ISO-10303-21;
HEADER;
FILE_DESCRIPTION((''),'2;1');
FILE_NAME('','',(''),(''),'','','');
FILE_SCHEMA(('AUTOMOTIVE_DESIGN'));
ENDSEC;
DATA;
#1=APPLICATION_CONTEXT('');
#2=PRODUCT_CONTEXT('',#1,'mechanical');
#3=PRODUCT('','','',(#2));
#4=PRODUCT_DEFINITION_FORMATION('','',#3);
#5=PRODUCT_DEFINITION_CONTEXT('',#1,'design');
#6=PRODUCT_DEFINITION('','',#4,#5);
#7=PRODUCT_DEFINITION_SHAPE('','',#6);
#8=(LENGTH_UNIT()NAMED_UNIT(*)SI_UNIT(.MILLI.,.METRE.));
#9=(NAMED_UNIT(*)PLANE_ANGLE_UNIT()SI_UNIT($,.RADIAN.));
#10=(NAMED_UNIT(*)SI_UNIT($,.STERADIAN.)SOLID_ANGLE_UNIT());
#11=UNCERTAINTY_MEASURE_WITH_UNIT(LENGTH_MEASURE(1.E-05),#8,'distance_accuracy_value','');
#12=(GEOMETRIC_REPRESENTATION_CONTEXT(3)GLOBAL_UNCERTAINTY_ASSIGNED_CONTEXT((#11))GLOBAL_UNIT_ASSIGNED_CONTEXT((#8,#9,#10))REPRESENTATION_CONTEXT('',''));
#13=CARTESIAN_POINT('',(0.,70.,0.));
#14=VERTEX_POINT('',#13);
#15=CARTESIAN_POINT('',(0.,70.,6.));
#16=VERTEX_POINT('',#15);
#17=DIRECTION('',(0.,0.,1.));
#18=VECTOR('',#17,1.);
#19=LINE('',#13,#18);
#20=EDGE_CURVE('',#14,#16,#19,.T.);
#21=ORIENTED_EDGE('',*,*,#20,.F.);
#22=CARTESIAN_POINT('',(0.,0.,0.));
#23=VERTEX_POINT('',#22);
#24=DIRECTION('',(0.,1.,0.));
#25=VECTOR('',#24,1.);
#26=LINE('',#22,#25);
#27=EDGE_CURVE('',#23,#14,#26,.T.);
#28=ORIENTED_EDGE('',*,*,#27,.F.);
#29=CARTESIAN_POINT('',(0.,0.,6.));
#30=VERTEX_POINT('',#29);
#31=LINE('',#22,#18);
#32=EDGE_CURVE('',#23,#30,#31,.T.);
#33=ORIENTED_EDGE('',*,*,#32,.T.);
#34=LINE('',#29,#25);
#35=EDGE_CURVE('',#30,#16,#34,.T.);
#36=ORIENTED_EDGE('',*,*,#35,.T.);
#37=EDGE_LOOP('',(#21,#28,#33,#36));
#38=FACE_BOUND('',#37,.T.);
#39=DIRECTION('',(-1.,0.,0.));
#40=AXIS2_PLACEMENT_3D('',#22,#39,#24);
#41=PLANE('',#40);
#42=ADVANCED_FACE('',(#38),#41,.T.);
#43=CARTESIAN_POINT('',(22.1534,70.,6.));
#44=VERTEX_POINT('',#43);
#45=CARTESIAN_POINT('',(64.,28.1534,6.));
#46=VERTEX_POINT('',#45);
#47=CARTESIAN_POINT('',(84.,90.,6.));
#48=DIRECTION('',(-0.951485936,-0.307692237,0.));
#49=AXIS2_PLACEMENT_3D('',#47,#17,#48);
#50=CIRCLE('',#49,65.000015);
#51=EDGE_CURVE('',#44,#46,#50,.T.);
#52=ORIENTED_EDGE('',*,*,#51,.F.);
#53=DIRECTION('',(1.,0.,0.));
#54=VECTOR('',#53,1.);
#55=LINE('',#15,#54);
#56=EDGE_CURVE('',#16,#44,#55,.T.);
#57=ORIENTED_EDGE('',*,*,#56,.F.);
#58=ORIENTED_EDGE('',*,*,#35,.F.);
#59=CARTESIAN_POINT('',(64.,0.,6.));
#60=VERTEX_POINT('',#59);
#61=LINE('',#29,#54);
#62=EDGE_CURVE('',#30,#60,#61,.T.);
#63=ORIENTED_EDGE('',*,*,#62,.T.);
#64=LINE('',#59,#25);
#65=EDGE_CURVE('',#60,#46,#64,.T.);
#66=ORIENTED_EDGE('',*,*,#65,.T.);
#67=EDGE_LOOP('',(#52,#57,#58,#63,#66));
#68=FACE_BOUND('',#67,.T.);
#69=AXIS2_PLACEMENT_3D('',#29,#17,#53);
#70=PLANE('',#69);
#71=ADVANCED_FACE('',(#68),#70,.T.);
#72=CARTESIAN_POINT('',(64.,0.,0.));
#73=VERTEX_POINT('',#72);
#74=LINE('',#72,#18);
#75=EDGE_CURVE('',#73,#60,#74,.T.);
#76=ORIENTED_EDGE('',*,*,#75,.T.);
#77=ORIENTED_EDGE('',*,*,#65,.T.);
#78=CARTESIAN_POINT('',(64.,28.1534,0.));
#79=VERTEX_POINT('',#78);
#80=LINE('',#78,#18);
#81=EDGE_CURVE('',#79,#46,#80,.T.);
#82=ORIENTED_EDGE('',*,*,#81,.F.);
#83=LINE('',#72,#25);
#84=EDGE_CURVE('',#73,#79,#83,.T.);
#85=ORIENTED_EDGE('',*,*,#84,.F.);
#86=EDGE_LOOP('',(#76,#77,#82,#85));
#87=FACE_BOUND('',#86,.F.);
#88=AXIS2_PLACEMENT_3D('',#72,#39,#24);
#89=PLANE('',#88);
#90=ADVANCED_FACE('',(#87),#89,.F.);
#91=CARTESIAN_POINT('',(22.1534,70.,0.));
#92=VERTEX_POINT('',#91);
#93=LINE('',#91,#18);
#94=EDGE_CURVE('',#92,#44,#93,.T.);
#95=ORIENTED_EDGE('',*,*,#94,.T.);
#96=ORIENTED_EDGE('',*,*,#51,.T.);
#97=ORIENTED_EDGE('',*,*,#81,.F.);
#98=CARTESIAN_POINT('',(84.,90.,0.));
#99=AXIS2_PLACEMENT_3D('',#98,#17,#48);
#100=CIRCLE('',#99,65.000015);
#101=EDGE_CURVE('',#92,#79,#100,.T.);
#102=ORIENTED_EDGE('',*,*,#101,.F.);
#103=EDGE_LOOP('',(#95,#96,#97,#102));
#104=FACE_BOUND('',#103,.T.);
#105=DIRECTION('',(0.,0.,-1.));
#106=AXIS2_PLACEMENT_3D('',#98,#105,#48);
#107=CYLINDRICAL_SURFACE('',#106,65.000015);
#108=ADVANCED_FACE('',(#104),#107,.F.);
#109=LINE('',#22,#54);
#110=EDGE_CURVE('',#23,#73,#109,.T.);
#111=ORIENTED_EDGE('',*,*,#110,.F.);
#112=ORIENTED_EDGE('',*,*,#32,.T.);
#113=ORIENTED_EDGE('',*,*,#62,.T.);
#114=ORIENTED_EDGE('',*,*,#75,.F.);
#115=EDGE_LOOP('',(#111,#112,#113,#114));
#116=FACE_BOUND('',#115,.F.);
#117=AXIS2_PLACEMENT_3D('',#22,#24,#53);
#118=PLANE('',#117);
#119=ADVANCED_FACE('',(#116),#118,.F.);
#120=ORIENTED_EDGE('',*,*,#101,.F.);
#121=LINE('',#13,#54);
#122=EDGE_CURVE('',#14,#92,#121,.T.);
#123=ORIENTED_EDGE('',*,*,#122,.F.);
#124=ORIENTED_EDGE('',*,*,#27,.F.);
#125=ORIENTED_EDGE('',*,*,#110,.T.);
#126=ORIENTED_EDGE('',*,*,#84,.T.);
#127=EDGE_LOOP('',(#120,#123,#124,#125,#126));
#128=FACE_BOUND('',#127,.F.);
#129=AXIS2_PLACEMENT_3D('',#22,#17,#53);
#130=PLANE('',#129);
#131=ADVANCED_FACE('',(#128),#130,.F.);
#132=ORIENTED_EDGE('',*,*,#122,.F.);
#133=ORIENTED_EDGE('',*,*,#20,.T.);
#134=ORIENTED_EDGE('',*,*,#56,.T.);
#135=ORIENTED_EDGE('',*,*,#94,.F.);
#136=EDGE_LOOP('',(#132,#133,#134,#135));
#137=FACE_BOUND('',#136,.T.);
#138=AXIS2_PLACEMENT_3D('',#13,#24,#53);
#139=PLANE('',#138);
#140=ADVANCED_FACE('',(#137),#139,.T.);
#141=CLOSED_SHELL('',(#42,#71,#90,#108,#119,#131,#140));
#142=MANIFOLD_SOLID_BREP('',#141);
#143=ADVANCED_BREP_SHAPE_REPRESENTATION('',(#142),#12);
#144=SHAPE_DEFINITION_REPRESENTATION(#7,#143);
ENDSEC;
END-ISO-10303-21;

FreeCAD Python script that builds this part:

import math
import FreeCAD as App
import Part
import Sketcher
from FreeCAD import Vector
Q = App.Units.Quantity

doc = App.newDocument("Part")
params = doc.addObject("Spreadsheet::Sheet", "Params")
for row, (alias, value) in enumerate([
    ("sketch1_radius", "65 mm"),
    ("sketch1_width", "64 mm"),
    ("sketch1_height", "70 mm"),
    ("pad1_length", "6 mm"),
], start=1):
    params.set(f"A{row}", alias)
    params.set(f"B{row}", "=" + value)
    params.setAlias(f"B{row}", alias)

body = doc.addObject("PartDesign::Body", "Body")

# Sketch on XY plane
sketch1 = doc.addObject("Sketcher::SketchObject", "Sketch")
body.addObject(sketch1)
sketch1.AttachmentSupport = (doc.XY_Plane, [""])
sketch1.MapMode = "FlatFace"
sketch1.addGeometry(Part.LineSegment(Vector(0, 70, 0), Vector(0, 0, 0)), False)
sketch1.addGeometry(Part.LineSegment(Vector(0, 0, 0), Vector(64, 0, 0)), False)
sketch1.addGeometry(Part.LineSegment(Vector(64, 0, 0), Vector(64, 28.1534, 0)), False)
sketch1.addGeometry(Part.ArcOfCircle(Part.Circle(Vector(84, 90, 0), Vector(0, 0, 1), 65.000015), math.radians(-162.079791), math.radians(-107.920209)), False)
sketch1.addGeometry(Part.LineSegment(Vector(22.1534, 70, 0), Vector(0, 70, 0)), False)
sketch1.addConstraint(Sketcher.Constraint("Coincident", 0, 2, 1, 1))
sketch1.addConstraint(Sketcher.Constraint("Coincident", 1, 2, 2, 1))
sketch1.addConstraint(Sketcher.Constraint("Coincident", 2, 2, 3, 2))
sketch1.addConstraint(Sketcher.Constraint("Coincident", 3, 1, 4, 1))
sketch1.addConstraint(Sketcher.Constraint("Coincident", 4, 2, 0, 1))
sketch1.addConstraint(Sketcher.Constraint("Vertical", 0))
sketch1.addConstraint(Sketcher.Constraint("Horizontal", 1))
sketch1.addConstraint(Sketcher.Constraint("Vertical", 2))
sketch1.addConstraint(Sketcher.Constraint("Horizontal", 4))
sketch1.addConstraint(Sketcher.Constraint("Coincident", 0, 2, -1, 1))
sketch1.addConstraint(Sketcher.Constraint("Radius", 3, Q("65 mm")))
sketch1.addConstraint(Sketcher.Constraint("DistanceX", 1, 1, 1, 2, Q("64 mm")))
sketch1.addConstraint(Sketcher.Constraint("DistanceY", 0, 2, 0, 1, Q("70 mm")))
sketch1.addConstraint(Sketcher.Constraint("DistanceX", -1, 1, 3, 3, Q("84 mm")))
sketch1.addConstraint(Sketcher.Constraint("DistanceY", -1, 1, 3, 3, Q("90 mm")))
sketch1.setExpression("Constraints[10]", "Params.sketch1_radius")
sketch1.setExpression("Constraints[11]", "Params.sketch1_width")
sketch1.setExpression("Constraints[12]", "Params.sketch1_height")
pad1 = doc.addObject("PartDesign::Pad", "Pad")
body.addObject(pad1)
pad1.Profile = sketch1
pad1.setExpression("Length", "Params.pad1_length")

doc.recompute()
